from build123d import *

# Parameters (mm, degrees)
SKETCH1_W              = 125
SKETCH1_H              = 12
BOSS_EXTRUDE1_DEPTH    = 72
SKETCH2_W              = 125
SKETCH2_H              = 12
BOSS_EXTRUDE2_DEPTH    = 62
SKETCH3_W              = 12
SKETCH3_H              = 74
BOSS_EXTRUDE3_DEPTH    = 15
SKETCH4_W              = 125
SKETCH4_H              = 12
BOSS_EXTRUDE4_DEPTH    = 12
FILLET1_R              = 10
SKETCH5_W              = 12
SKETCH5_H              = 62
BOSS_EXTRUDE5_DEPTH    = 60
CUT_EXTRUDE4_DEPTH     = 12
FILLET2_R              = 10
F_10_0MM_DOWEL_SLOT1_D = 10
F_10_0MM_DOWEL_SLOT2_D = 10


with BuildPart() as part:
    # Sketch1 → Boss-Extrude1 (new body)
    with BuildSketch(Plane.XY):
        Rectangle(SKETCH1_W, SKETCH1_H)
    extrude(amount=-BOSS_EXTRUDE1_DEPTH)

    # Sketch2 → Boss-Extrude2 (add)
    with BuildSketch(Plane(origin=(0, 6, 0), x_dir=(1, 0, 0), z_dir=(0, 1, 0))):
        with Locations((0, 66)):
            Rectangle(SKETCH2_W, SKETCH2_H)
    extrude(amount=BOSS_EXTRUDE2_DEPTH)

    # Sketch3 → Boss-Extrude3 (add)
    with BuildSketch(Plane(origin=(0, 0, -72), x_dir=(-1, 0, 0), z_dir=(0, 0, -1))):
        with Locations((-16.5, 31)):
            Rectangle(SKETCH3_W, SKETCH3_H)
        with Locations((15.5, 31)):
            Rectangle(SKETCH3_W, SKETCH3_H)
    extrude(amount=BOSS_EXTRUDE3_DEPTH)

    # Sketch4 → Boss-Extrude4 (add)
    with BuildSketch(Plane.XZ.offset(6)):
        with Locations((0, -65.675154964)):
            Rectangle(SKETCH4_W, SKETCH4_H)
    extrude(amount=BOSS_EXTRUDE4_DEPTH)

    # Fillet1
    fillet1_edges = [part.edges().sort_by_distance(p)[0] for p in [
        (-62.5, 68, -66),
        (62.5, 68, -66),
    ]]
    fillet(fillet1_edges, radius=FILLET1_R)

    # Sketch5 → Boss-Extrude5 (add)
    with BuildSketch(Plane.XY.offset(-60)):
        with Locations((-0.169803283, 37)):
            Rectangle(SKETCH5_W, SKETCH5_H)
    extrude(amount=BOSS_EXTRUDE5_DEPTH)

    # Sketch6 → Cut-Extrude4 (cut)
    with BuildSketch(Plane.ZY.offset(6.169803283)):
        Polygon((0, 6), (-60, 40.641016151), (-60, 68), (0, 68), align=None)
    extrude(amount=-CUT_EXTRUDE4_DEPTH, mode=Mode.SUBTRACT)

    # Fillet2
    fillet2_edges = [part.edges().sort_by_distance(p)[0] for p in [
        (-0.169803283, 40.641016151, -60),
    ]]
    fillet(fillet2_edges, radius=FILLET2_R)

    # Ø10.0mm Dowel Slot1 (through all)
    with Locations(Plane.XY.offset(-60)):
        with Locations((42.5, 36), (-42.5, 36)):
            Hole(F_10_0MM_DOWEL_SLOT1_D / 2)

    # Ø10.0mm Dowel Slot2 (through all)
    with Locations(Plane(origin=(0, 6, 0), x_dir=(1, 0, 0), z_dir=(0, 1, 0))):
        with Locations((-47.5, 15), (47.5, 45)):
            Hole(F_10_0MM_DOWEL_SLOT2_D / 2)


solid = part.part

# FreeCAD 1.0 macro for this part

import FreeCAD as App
import Part
import Sketcher
Q = App.Units.Quantity


def edges_at(feature, points):
    """Names of the edges that pass closest to the given points."""
    edges = feature.Shape.Edges
    near = lambda p: min(range(len(edges)), key=lambda i: edges[i].distToShape(Part.Vertex(*p))[0])
    return sorted({f"Edge{near(p) + 1}" for p in points})

doc = App.newDocument("Part")
body = doc.addObject("PartDesign::Body", "Body")

# Sketch on XY plane
sketch1 = body.newObject("Sketcher::SketchObject", "Sketch")
sketch1.AttachmentSupport = (doc.getObject("XY_Plane"), [""])
sketch1.MapMode = "FlatFace"
sketch1.addGeometry(Part.LineSegment(App.Vector(-62, 6, 0), App.Vector(-62, -6, 0)), False)
sketch1.addGeometry(Part.LineSegment(App.Vector(-62, -6, 0), App.Vector(62, -6, 0)), False)
sketch1.addGeometry(Part.LineSegment(App.Vector(62, -6, 0), App.Vector(62, 6, 0)), False)
sketch1.addGeometry(Part.LineSegment(App.Vector(62, 6, 0), App.Vector(-62, 6, 0)), False)
sketch1.addConstraint(Sketcher.Constraint("Coincident", 0, 2, 1, 1))
sketch1.addConstraint(Sketcher.Constraint("Coincident", 1, 2, 2, 1))
sketch1.addConstraint(Sketcher.Constraint("Coincident", 2, 2, 3, 1))
sketch1.addConstraint(Sketcher.Constraint("Coincident", 3, 2, 0, 1))
sketch1.addConstraint(Sketcher.Constraint("Vertical", 0))
sketch1.addConstraint(Sketcher.Constraint("Horizontal", 1))
sketch1.addConstraint(Sketcher.Constraint("Vertical", 2))
sketch1.addConstraint(Sketcher.Constraint("Horizontal", 3))
sketch1.addConstraint(Sketcher.Constraint("Symmetric", 0, 2, 2, 2, -1, 1))
sketch1.addConstraint(Sketcher.Constraint("DistanceX", 1, 1, 1, 2, Q("125 mm")))
sketch1.addConstraint(Sketcher.Constraint("DistanceY", 0, 2, 0, 1, Q("12 mm")))
pad1 = body.newObject("PartDesign::Pad", "Pad")
pad1.Profile = sketch1
pad1.Length = 72
pad1.Reversed = True

# Sketch on XZ plane
sketch2 = body.newObject("Sketcher::SketchObject", "Sketch001")
sketch2.AttachmentSupport = (doc.getObject("XZ_Plane"), [""])
sketch2.MapMode = "FlatFace"
sketch2.AttachmentOffset = App.Placement(App.Vector(0, 0, -6), App.Rotation())
sketch2.addGeometry(Part.LineSegment(App.Vector(-62, -72, 0), App.Vector(-62, -60, 0)), False)
sketch2.addGeometry(Part.LineSegment(App.Vector(-62, -60, 0), App.Vector(62, -60, 0)), False)
sketch2.addGeometry(Part.LineSegment(App.Vector(62, -60, 0), App.Vector(62, -72, 0)), False)
sketch2.addGeometry(Part.LineSegment(App.Vector(62, -72, 0), App.Vector(-62, -72, 0)), False)
sketch2.addConstraint(Sketcher.Constraint("Coincident", 0, 2, 1, 1))
sketch2.addConstraint(Sketcher.Constraint("Coincident", 1, 2, 2, 1))
sketch2.addConstraint(Sketcher.Constraint("Coincident", 2, 2, 3, 1))
sketch2.addConstraint(Sketcher.Constraint("Coincident", 3, 2, 0, 1))
sketch2.addConstraint(Sketcher.Constraint("Vertical", 0))
sketch2.addConstraint(Sketcher.Constraint("Horizontal", 1))
sketch2.addConstraint(Sketcher.Constraint("Vertical", 2))
sketch2.addConstraint(Sketcher.Constraint("Horizontal", 3))
sketch2.addConstraint(Sketcher.Constraint("DistanceX", 1, 1, 1, 2, Q("125 mm")))
sketch2.addConstraint(Sketcher.Constraint("DistanceY", 0, 1, 0, 2, Q("12 mm")))
sketch2.addConstraint(Sketcher.Constraint("DistanceY", 0, 2, -1, 1, Q("60 mm")))
sketch2.addConstraint(Sketcher.Constraint("DistanceX", 0, 2, -1, 1, Q("62.5 mm")))
pad2 = body.newObject("PartDesign::Pad", "Pad001")
pad2.Profile = sketch2
pad2.Length = 62
pad2.Reversed = True

# Sketch on XY plane
sketch3 = body.newObject("Sketcher::SketchObject", "Sketch002")
sketch3.AttachmentSupport = (doc.getObject("XY_Plane"), [""])
sketch3.MapMode = "FlatFace"
sketch3.AttachmentOffset = App.Placement(App.Vector(0, 0, -72), App.Rotation())
sketch3.addGeometry(Part.LineSegment(App.Vector(22, 68, 0), App.Vector(22, -6, 0)), False)
sketch3.addGeometry(Part.LineSegment(App.Vector(22, -6, 0), App.Vector(10, -6, 0)), False)
sketch3.addGeometry(Part.LineSegment(App.Vector(10, -6, 0), App.Vector(10, 68, 0)), False)
sketch3.addGeometry(Part.LineSegment(App.Vector(10, 68, 0), App.Vector(22, 68, 0)), False)
sketch3.addGeometry(Part.LineSegment(App.Vector(-10, 68, 0), App.Vector(-10, -6, 0)), False)
sketch3.addGeometry(Part.LineSegment(App.Vector(-10, -6, 0), App.Vector(-22, -6, 0)), False)
sketch3.addGeometry(Part.LineSegment(App.Vector(-22, -6, 0), App.Vector(-22, 68, 0)), False)
sketch3.addGeometry(Part.LineSegment(App.Vector(-22, 68, 0), App.Vector(-10, 68, 0)), False)
sketch3.addConstraint(Sketcher.Constraint("Coincident", 0, 2, 1, 1))
sketch3.addConstraint(Sketcher.Constraint("Coincident", 1, 2, 2, 1))
sketch3.addConstraint(Sketcher.Constraint("Coincident", 2, 2, 3, 1))
sketch3.addConstraint(Sketcher.Constraint("Coincident", 3, 2, 0, 1))
sketch3.addConstraint(Sketcher.Constraint("Coincident", 4, 2, 5, 1))
sketch3.addConstraint(Sketcher.Constraint("Coincident", 5, 2, 6, 1))
sketch3.addConstraint(Sketcher.Constraint("Coincident", 6, 2, 7, 1))
sketch3.addConstraint(Sketcher.Constraint("Coincident", 7, 2, 4, 1))
sketch3.addConstraint(Sketcher.Constraint("Vertical", 0))
sketch3.addConstraint(Sketcher.Constraint("Horizontal", 1))
sketch3.addConstraint(Sketcher.Constraint("Vertical", 2))
sketch3.addConstraint(Sketcher.Constraint("Horizontal", 3))
sketch3.addConstraint(Sketcher.Constraint("Vertical", 4))
sketch3.addConstraint(Sketcher.Constraint("Horizontal", 5))
sketch3.addConstraint(Sketcher.Constraint("Vertical", 6))
sketch3.addConstraint(Sketcher.Constraint("Horizontal", 7))
sketch3.addConstraint(Sketcher.Constraint("Horizontal", 1, 2, 4, 2))
sketch3.addConstraint(Sketcher.Constraint("Horizontal", 3, 2, 6, 2))
sketch3.addConstraint(Sketcher.Constraint("Equal", 3, 5))
sketch3.addConstraint(Sketcher.Constraint("DistanceX", 1, 2, 1, 1, Q("12 mm")))
sketch3.addConstraint(Sketcher.Constraint("DistanceY", 0, 2, 0, 1, Q("74 mm")))
sketch3.addConstraint(Sketcher.Constraint("DistanceY", 0, 2, -1, 1, Q("6 mm")))
sketch3.addConstraint(Sketcher.Constraint("DistanceX", 4, 2, 1, 2, Q("20 mm")))
sketch3.addConstraint(Sketcher.Constraint("DistanceX", -1, 1, 0, 2, Q("22.5 mm")))
pad3 = body.newObject("PartDesign::Pad", "Pad002")
pad3.Profile = sketch3
pad3.Length = 15
pad3.Reversed = True

# Sketch on XZ plane
sketch4 = body.newObject("Sketcher::SketchObject", "Sketch003")
sketch4.AttachmentSupport = (doc.getObject("XZ_Plane"), [""])
sketch4.MapMode = "FlatFace"
sketch4.AttachmentOffset = App.Placement(App.Vector(0, 0, 6), App.Rotation())
sketch4.addGeometry(Part.LineSegment(App.Vector(-62, -60, 0), App.Vector(-62, -72, 0)), False)
sketch4.addGeometry(Part.LineSegment(App.Vector(-62, -72, 0), App.Vector(62, -72, 0)), False)
sketch4.addGeometry(Part.LineSegment(App.Vector(62, -72, 0), App.Vector(62, -60, 0)), False)
sketch4.addGeometry(Part.LineSegment(App.Vector(62, -60, 0), App.Vector(-62, -60, 0)), False)
sketch4.addConstraint(Sketcher.Constraint("Coincident", 0, 2, 1, 1))
sketch4.addConstraint(Sketcher.Constraint("Coincident", 1, 2, 2, 1))
sketch4.addConstraint(Sketcher.Constraint("Coincident", 2, 2, 3, 1))
sketch4.addConstraint(Sketcher.Constraint("Coincident", 3, 2, 0, 1))
sketch4.addConstraint(Sketcher.Constraint("Vertical", 0))
sketch4.addConstraint(Sketcher.Constraint("Horizontal", 1))
sketch4.addConstraint(Sketcher.Constraint("Vertical", 2))
sketch4.addConstraint(Sketcher.Constraint("Horizontal", 3))
sketch4.addConstraint(Sketcher.Constraint("DistanceX", 1, 1, 1, 2, Q("125 mm")))
sketch4.addConstraint(Sketcher.Constraint("DistanceY", 0, 2, 0, 1, Q("12 mm")))
sketch4.addConstraint(Sketcher.Constraint("DistanceX", 0, 2, -1, 1, Q("62.5 mm")))
sketch4.addConstraint(Sketcher.Constraint("DistanceY", 0, 2, -1, 1, Q("71.675155 mm")))
pad4 = body.newObject("PartDesign::Pad", "Pad003")
pad4.Profile = sketch4
pad4.Length = 12
doc.recompute()

fillet = body.newObject("PartDesign::Fillet", "Fillet")
fillet.Base = (pad4, edges_at(pad4, [(-62.5, 68, -66), (62.5, 68, -66)]))
fillet.Radius = 10

# Sketch on XY plane
sketch5 = body.newObject("Sketcher::SketchObject", "Sketch004")
sketch5.AttachmentSupport = (doc.getObject("XY_Plane"), [""])
sketch5.MapMode = "FlatFace"
sketch5.AttachmentOffset = App.Placement(App.Vector(0, 0, -60), App.Rotation())
sketch5.addGeometry(Part.LineSegment(App.Vector(-6, 68, 0), App.Vector(-6, 6, 0)), False)
sketch5.addGeometry(Part.LineSegment(App.Vector(-6, 6, 0), App.Vector(6, 6, 0)), False)
sketch5.addGeometry(Part.LineSegment(App.Vector(6, 6, 0), App.Vector(6, 68, 0)), False)
sketch5.addGeometry(Part.LineSegment(App.Vector(6, 68, 0), App.Vector(-6, 68, 0)), False)
sketch5.addConstraint(Sketcher.Constraint("Coincident", 0, 2, 1, 1))
sketch5.addConstraint(Sketcher.Constraint("Coincident", 1, 2, 2, 1))
sketch5.addConstraint(Sketcher.Constraint("Coincident", 2, 2, 3, 1))
sketch5.addConstraint(Sketcher.Constraint("Coincident", 3, 2, 0, 1))
sketch5.addConstraint(Sketcher.Constraint("Vertical", 0))
sketch5.addConstraint(Sketcher.Constraint("Horizontal", 1))
sketch5.addConstraint(Sketcher.Constraint("Vertical", 2))
sketch5.addConstraint(Sketcher.Constraint("Horizontal", 3))
sketch5.addConstraint(Sketcher.Constraint("DistanceX", 1, 1, 1, 2, Q("12 mm")))
sketch5.addConstraint(Sketcher.Constraint("DistanceY", 0, 2, 0, 1, Q("62 mm")))
sketch5.addConstraint(Sketcher.Constraint("DistanceY", -1, 1, 0, 2, Q("6 mm")))
sketch5.addConstraint(Sketcher.Constraint("DistanceX", 0, 2, -1, 1, Q("6.169803 mm")))
pad5 = body.newObject("PartDesign::Pad", "Pad004")
pad5.Profile = sketch5
pad5.Length = 60

# Sketch on YZ plane
sketch6 = body.newObject("Sketcher::SketchObject", "Sketch005")
sketch6.AttachmentSupport = (doc.getObject("YZ_Plane"), [""])
sketch6.MapMode = "FlatFace"
sketch6.AttachmentOffset = App.Placement(App.Vector(0, 0, -6.169803), App.Rotation())
sketch6.addGeometry(Part.LineSegment(App.Vector(41, -60, 0), App.Vector(6, 0, 0)), False)
sketch6.addGeometry(Part.LineSegment(App.Vector(6, 0, 0), App.Vector(68, 0, 0)), False)
sketch6.addGeometry(Part.LineSegment(App.Vector(68, 0, 0), App.Vector(68, -60, 0)), False)
sketch6.addGeometry(Part.LineSegment(App.Vector(68, -60, 0), App.Vector(41, -60, 0)), False)
sketch6.addConstraint(Sketcher.Constraint("Coincident", 0, 2, 1, 1))
sketch6.addConstraint(Sketcher.Constraint("Coincident", 1, 2, 2, 1))
sketch6.addConstraint(Sketcher.Constraint("Coincident", 2, 2, 3, 1))
sketch6.addConstraint(Sketcher.Constraint("Coincident", 3, 2, 0, 1))
sketch6.addConstraint(Sketcher.Constraint("Horizontal", 1))
sketch6.addConstraint(Sketcher.Constraint("Vertical", 2))
sketch6.addConstraint(Sketcher.Constraint("Horizontal", 3))
sketch6.addConstraint(Sketcher.Constraint("PointOnObject", 0, 2, -1))
sketch6.addConstraint(Sketcher.Constraint("DistanceX", 1, 1, 1, 2, Q("62 mm")))
sketch6.addConstraint(Sketcher.Constraint("DistanceY", 2, 2, 2, 1, Q("60 mm")))
sketch6.addConstraint(Sketcher.Constraint("Angle", 0, Q("120 deg")))
sketch6.addConstraint(Sketcher.Constraint("DistanceX", -1, 1, 0, 2, Q("6 mm")))
pocket1 = body.newObject("PartDesign::Pocket", "Pocket")
pocket1.Profile = sketch6
pocket1.Length = 12
pocket1.Reversed = True
doc.recompute()

fillet2 = body.newObject("PartDesign::Fillet", "Fillet001")
fillet2.Base = (pocket1, edges_at(pocket1, [(-0.17, 40.641, -60)]))
fillet2.Radius = 10

# Sketch on XY plane
sketch7 = body.newObject("Sketcher::SketchObject", "Sketch006")
sketch7.AttachmentSupport = (doc.getObject("XY_Plane"), [""])
sketch7.MapMode = "FlatFace"
sketch7.AttachmentOffset = App.Placement(App.Vector(0, 0, -60), App.Rotation())
sketch7.addGeometry(Part.Circle(App.Vector(42, 36, 0), App.Vector(0, 0, 1), 5), False)
sketch7.addGeometry(Part.Circle(App.Vector(-42, 36, 0), App.Vector(0, 0, 1), 5), False)
sketch7.addConstraint(Sketcher.Constraint("Equal", 0, 1))
sketch7.addConstraint(Sketcher.Constraint("Symmetric", 0, 3, 1, 3, -2))
sketch7.addConstraint(Sketcher.Constraint("Diameter", 0, Q("10 mm")))
sketch7.addConstraint(Sketcher.Constraint("DistanceY", -1, 1, 0, 3, Q("36 mm")))
sketch7.addConstraint(Sketcher.Constraint("DistanceX", 1, 3, 0, 3, Q("85 mm")))
doc.recompute()
hole = body.newObject("PartDesign::Hole", "Hole")
hole.Profile = sketch7
hole.ThreadType = "None"
hole.Diameter = 10
hole.DepthType = "ThroughAll"

# Sketch on XZ plane
sketch8 = body.newObject("Sketcher::SketchObject", "Sketch007")
sketch8.AttachmentSupport = (doc.getObject("XZ_Plane"), [""])
sketch8.MapMode = "FlatFace"
sketch8.AttachmentOffset = App.Placement(App.Vector(0, 0, -6), App.Rotation())
sketch8.addGeometry(Part.Circle(App.Vector(-48, -15, 0), App.Vector(0, 0, 1), 5), False)
sketch8.addGeometry(Part.Circle(App.Vector(48, -45, 0), App.Vector(0, 0, 1), 5), False)
sketch8.addConstraint(Sketcher.Constraint("Equal", 0, 1))
sketch8.addConstraint(Sketcher.Constraint("Diameter", 0, Q("10 mm")))
sketch8.addConstraint(Sketcher.Constraint("DistanceY", 0, 3, -1, 1, Q("15 mm")))
sketch8.addConstraint(Sketcher.Constraint("DistanceY", 1, 3, -1, 1, Q("45 mm")))
sketch8.addConstraint(Sketcher.Constraint("DistanceX", 0, 3, 1, 3, Q("95 mm")))
sketch8.addConstraint(Sketcher.Constraint("DistanceX", 0, 3, -1, 1, Q("47.5 mm")))
doc.recompute()
hole2 = body.newObject("PartDesign::Hole", "Hole001")
hole2.Profile = sketch8
hole2.ThreadType = "None"
hole2.Diameter = 10
hole2.DepthType = "ThroughAll"
hole2.Reversed = True

doc.recompute()
